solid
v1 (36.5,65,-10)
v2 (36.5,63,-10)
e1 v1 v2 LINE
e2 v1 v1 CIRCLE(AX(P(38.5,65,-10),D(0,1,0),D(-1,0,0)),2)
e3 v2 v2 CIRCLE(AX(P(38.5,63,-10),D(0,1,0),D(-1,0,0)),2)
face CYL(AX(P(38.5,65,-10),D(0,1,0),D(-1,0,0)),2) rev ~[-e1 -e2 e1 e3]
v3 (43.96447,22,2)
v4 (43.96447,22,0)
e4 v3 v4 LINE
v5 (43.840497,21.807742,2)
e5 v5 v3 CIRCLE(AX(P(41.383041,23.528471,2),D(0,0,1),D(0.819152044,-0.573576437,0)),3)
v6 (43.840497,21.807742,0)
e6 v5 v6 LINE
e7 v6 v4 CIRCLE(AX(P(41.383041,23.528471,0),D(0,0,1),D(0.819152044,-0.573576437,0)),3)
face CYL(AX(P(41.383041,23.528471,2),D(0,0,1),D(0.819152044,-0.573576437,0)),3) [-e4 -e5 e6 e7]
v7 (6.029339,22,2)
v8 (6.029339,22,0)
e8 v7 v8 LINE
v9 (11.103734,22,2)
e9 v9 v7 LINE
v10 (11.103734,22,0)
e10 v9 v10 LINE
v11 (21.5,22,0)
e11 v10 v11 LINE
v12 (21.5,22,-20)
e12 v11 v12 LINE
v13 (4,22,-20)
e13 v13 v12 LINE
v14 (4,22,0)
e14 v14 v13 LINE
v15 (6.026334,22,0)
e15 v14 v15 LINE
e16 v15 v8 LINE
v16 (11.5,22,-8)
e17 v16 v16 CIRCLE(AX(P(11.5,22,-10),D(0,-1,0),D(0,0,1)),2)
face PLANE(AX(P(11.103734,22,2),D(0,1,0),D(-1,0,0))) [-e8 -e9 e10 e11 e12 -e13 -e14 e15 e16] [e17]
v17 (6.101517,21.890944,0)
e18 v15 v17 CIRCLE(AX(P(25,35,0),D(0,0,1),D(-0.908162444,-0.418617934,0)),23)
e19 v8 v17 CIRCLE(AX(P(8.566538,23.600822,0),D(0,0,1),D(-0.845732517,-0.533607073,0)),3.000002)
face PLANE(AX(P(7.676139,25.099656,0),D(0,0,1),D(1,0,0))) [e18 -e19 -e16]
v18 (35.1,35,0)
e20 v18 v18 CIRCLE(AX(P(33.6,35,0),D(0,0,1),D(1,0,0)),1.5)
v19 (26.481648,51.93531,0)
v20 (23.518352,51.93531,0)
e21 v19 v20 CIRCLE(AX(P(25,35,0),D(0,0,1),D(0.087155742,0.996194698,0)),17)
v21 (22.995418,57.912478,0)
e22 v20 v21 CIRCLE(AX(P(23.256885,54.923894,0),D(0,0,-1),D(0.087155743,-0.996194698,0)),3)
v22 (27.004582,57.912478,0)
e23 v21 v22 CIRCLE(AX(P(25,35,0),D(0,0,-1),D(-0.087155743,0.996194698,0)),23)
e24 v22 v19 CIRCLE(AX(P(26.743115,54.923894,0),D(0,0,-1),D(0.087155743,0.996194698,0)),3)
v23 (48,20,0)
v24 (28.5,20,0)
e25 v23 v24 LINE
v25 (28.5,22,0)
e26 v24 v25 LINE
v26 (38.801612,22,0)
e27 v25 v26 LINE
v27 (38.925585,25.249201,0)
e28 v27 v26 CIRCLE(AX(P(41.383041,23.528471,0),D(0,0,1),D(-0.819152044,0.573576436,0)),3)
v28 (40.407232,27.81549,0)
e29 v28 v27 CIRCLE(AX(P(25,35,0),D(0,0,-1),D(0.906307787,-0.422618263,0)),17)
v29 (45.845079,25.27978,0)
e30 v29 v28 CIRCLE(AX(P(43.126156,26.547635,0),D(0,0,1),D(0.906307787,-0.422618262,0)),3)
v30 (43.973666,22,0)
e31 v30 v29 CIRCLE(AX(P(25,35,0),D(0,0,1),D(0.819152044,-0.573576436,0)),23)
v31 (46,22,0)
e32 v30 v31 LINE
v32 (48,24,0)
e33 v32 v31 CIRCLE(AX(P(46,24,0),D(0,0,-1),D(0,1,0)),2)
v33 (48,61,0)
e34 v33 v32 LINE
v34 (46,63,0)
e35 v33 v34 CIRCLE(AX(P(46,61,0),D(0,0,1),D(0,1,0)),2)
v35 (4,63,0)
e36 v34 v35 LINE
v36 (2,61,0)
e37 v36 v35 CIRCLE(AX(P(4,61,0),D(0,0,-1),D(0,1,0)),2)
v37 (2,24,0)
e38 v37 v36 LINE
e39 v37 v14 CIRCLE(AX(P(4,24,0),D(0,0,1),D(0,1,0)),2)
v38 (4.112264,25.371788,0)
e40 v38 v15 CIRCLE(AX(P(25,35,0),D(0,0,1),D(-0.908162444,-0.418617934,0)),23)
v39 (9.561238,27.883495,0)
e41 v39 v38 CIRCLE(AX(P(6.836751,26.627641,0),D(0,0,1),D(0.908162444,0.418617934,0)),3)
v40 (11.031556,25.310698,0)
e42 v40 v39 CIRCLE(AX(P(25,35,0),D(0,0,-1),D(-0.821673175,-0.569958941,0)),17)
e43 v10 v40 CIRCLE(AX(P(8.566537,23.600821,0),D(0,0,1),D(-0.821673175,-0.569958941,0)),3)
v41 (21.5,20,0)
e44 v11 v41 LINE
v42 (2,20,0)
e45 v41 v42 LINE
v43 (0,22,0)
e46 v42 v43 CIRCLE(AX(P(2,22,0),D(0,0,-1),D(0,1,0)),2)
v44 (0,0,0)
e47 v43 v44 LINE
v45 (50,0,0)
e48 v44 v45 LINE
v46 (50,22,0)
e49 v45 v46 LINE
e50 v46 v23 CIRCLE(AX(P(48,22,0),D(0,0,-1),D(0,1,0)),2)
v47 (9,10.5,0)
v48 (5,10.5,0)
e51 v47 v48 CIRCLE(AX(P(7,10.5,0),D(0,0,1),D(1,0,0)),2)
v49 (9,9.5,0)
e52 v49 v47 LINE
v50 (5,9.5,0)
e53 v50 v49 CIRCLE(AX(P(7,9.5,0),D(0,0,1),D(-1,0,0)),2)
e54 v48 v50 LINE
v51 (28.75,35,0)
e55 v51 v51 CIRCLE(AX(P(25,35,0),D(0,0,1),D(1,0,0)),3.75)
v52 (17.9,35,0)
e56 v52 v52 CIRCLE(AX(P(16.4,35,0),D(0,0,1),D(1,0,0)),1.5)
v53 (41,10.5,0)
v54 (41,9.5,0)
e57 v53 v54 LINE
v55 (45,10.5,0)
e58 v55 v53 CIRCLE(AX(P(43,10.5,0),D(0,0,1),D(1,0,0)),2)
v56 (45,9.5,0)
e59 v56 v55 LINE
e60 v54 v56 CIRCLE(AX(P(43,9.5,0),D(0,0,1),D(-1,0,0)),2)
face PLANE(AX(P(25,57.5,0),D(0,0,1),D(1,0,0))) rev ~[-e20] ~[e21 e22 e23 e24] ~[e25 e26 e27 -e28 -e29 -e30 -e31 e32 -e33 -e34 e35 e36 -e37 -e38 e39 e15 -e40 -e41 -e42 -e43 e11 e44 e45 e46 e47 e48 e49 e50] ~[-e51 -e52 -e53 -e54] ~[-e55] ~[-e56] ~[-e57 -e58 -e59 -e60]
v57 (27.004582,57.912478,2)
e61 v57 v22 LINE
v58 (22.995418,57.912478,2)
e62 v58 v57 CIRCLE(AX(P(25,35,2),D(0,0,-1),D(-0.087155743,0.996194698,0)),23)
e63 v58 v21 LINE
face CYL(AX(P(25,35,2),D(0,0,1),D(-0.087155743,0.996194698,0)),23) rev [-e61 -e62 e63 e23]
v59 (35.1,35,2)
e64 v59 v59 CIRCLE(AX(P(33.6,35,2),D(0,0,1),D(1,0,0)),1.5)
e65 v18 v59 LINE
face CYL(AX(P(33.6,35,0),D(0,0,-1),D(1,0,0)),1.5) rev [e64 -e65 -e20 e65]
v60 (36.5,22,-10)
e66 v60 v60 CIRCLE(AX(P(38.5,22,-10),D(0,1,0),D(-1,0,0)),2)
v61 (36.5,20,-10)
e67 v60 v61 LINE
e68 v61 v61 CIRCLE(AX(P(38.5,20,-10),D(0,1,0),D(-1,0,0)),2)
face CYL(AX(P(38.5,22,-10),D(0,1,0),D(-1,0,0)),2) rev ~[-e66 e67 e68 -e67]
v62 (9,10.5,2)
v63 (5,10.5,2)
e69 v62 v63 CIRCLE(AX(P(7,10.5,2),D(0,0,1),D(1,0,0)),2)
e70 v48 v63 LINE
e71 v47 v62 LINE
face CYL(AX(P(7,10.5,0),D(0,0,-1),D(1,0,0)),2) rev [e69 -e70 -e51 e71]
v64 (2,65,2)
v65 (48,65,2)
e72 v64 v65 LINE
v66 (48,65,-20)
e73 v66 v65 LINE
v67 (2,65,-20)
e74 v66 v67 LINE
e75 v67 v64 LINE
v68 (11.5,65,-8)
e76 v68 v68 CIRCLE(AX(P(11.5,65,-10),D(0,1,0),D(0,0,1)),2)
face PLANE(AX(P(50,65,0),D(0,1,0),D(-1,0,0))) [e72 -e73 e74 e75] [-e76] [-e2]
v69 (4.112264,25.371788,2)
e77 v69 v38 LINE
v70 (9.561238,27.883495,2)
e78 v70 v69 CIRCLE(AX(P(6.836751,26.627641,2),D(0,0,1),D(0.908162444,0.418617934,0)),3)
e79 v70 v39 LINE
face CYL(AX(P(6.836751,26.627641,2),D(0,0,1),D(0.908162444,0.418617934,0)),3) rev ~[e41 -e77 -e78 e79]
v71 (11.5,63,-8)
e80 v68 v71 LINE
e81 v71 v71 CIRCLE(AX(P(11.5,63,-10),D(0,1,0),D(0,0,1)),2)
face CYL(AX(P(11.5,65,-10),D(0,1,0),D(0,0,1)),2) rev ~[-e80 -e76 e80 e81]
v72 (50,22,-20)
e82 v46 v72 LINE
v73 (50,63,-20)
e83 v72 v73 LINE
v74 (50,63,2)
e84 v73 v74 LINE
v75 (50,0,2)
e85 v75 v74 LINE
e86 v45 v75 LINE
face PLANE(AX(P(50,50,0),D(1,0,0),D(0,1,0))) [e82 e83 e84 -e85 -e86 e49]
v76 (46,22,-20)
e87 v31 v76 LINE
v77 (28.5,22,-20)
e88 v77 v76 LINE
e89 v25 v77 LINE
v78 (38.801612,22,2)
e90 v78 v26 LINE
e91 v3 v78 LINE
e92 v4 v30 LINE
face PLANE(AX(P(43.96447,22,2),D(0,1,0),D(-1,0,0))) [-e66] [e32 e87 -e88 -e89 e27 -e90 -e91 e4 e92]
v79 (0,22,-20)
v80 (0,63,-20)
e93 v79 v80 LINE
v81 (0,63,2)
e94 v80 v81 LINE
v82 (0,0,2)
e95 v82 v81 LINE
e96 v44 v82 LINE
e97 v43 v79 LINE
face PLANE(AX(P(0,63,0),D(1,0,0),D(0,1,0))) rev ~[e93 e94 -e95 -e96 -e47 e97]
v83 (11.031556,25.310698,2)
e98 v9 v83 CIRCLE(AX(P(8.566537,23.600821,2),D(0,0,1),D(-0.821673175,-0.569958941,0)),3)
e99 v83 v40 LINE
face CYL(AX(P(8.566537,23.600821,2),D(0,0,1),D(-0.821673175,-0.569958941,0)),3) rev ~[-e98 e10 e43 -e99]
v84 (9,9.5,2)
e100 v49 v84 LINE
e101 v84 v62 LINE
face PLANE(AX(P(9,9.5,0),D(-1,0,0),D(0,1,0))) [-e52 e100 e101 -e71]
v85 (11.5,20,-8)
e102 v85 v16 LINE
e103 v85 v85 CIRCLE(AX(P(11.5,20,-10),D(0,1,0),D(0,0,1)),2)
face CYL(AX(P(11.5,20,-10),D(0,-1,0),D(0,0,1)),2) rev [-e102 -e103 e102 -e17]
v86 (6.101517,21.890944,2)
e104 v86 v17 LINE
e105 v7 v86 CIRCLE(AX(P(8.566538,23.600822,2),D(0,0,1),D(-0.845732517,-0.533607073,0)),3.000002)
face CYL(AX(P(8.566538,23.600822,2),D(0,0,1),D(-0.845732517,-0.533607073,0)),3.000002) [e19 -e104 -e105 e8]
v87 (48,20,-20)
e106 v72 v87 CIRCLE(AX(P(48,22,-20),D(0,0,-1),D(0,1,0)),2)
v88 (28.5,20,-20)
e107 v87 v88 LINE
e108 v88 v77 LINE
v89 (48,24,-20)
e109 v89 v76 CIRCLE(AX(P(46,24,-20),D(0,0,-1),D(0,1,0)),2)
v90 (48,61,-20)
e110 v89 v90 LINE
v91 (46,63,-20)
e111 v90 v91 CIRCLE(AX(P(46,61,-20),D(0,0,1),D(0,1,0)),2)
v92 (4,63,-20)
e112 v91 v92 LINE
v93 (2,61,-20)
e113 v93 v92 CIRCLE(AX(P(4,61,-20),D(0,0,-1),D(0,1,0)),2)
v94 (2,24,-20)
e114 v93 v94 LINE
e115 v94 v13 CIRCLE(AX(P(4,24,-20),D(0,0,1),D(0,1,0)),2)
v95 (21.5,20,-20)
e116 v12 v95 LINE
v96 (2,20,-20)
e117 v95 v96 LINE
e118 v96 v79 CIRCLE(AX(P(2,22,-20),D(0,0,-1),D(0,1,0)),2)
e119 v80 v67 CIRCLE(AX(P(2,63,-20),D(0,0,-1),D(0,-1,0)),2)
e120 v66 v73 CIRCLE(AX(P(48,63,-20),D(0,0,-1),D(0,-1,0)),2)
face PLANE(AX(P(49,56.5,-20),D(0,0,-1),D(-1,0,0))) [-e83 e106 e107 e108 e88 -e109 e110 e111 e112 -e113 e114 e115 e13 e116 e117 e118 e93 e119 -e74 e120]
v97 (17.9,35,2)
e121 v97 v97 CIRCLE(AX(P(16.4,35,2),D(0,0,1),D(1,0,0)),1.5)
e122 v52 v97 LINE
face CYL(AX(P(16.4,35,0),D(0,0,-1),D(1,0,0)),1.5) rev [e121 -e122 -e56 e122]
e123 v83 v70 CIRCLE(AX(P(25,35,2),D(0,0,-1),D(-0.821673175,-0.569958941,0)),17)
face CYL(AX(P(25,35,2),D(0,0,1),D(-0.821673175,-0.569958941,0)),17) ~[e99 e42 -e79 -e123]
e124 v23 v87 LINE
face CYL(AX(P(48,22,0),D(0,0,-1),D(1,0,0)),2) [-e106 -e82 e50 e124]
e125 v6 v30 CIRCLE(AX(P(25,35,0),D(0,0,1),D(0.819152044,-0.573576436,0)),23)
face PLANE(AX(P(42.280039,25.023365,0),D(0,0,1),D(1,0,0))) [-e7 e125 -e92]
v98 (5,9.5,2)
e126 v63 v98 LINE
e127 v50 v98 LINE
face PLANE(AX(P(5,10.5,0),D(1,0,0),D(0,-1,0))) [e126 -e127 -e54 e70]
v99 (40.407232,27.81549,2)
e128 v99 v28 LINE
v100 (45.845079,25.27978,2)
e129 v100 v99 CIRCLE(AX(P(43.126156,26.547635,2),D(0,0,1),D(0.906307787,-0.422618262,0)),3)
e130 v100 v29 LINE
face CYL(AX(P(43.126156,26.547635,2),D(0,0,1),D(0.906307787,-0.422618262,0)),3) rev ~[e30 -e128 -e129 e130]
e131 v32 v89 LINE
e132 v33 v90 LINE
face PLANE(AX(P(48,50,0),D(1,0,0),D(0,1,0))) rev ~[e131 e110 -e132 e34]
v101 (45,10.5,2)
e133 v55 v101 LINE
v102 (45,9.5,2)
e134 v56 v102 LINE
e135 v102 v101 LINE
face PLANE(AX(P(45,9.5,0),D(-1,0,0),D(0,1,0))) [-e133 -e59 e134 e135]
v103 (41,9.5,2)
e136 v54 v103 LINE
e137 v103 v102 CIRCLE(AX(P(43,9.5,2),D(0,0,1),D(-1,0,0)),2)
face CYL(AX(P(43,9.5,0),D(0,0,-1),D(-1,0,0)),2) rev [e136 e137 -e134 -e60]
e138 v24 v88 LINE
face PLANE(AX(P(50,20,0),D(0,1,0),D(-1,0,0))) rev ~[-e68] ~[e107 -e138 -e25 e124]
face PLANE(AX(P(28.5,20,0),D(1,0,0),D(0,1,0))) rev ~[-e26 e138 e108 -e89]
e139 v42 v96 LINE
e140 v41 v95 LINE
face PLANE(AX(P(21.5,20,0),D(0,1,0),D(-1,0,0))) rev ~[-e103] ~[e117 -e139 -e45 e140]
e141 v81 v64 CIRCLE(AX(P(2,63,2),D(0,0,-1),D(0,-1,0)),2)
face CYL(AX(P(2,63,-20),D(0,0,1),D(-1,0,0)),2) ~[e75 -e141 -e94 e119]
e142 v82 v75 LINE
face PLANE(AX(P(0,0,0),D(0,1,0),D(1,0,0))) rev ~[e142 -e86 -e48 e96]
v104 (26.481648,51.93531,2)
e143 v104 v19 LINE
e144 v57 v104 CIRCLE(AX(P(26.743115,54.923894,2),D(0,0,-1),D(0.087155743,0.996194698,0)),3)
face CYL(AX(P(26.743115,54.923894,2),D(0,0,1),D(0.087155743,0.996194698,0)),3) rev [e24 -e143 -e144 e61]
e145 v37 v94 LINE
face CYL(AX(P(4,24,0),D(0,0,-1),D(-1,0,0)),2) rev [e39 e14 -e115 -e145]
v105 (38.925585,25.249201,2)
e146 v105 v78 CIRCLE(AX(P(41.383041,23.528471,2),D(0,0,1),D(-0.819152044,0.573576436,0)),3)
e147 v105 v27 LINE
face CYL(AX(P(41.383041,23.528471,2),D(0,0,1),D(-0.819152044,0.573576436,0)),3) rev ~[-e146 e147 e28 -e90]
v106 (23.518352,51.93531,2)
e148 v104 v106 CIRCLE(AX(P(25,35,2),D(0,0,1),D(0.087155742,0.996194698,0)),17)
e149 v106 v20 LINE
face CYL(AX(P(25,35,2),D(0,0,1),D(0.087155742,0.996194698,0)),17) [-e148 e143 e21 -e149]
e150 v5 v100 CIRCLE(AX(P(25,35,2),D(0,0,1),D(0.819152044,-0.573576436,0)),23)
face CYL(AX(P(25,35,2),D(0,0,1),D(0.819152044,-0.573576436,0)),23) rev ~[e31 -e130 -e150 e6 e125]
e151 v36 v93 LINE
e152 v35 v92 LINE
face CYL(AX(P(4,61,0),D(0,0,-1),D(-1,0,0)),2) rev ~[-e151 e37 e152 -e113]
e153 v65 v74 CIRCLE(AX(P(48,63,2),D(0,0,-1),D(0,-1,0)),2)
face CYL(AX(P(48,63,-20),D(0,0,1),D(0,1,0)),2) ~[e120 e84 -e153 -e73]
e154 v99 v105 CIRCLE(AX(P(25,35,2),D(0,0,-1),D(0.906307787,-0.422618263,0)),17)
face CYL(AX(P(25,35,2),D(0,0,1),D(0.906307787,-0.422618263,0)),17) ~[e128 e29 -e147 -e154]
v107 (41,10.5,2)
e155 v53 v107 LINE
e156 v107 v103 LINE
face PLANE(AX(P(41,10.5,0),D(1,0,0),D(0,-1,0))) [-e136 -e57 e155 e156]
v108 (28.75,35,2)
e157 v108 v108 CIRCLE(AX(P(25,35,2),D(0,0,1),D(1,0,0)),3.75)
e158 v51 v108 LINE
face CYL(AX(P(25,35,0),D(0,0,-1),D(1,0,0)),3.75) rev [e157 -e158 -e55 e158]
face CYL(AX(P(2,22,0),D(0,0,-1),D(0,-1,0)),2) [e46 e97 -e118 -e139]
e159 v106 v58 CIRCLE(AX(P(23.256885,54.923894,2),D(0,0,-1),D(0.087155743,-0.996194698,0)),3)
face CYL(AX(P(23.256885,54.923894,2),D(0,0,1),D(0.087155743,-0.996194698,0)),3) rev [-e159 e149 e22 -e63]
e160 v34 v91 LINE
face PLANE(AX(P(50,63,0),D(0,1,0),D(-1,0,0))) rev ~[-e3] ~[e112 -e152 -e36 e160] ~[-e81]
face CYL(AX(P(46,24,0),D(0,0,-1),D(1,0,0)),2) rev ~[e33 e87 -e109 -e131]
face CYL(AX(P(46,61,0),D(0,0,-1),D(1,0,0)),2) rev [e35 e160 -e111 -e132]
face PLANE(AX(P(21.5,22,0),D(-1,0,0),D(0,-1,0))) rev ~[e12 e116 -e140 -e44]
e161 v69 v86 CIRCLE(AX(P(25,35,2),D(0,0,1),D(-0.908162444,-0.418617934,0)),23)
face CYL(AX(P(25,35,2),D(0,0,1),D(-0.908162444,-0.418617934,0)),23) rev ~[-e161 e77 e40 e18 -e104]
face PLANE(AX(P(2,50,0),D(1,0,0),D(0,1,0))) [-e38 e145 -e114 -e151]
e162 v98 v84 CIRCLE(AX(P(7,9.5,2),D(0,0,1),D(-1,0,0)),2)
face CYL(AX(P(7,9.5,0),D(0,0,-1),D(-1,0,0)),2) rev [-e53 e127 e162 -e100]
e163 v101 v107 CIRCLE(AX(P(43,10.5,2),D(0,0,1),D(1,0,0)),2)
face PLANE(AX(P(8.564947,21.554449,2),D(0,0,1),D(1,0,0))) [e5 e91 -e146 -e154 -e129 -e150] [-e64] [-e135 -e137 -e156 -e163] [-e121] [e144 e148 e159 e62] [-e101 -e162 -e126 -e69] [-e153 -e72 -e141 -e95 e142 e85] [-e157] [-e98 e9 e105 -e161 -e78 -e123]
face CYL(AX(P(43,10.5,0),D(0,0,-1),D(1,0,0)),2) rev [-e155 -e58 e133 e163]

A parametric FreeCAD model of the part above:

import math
import FreeCAD as App
import Part
import Sketcher
Q = App.Units.Quantity


def edges_at(feature, points):
    """Names of the edges that pass closest to the given points."""
    edges = feature.Shape.Edges
    near = lambda p: min(range(len(edges)), key=lambda i: edges[i].distToShape(Part.Vertex(*p))[0])
    return sorted({f"Edge{near(p) + 1}" for p in points})

doc = App.newDocument("Part")
body = doc.addObject("PartDesign::Body", "Body")

# Sketch on XY plane
sketch1 = body.newObject("Sketcher::SketchObject", "Sketch")
sketch1.AttachmentSupport = (doc.getObject("XY_Plane"), [""])
sketch1.MapMode = "FlatFace"
sketch1.addGeometry([
    Part.LineSegment(App.Vector(0, 50, 0), App.Vector(0, 0, 0)),  # 0
    Part.LineSegment(App.Vector(0, 0, 0), App.Vector(50, 0, 0)),  # 1
    Part.LineSegment(App.Vector(50, 0, 0), App.Vector(50, 50, 0)),  # 2
    Part.LineSegment(App.Vector(50, 50, 0), App.Vector(0, 50, 0)),  # 3
    Part.LineSegment(App.Vector(9, 10.5, 0), App.Vector(9, 9.5, 0)),  # 4
    Part.ArcOfCircle(Part.Circle(App.Vector(7, 9.5, 0), App.Vector(0, 0, 1), 2), math.radians(180), math.radians(360)),  # 5
    Part.LineSegment(App.Vector(5, 9.5, 0), App.Vector(5, 10.5, 0)),  # 6
    Part.ArcOfCircle(Part.Circle(App.Vector(7, 10.5, 0), App.Vector(0, 0, 1), 2), math.radians(0), math.radians(180)),  # 7
    Part.LineSegment(App.Vector(45, 10.5, 0), App.Vector(45, 9.5, 0)),  # 8
    Part.ArcOfCircle(Part.Circle(App.Vector(43, 9.5, 0), App.Vector(0, 0, 1), 2), math.radians(180), math.radians(360)),  # 9
    Part.LineSegment(App.Vector(41, 9.5, 0), App.Vector(41, 10.5, 0)),  # 10
    Part.ArcOfCircle(Part.Circle(App.Vector(43, 10.5, 0), App.Vector(0, 0, 1), 2), math.radians(0), math.radians(180)),  # 11
    Part.Circle(App.Vector(16.4, 35, 0), App.Vector(0, 0, 1), 1.5),  # 12
    Part.Circle(App.Vector(25, 35, 0), App.Vector(0, 0, 1), 3.75),  # 13
    Part.Circle(App.Vector(33.6, 35, 0), App.Vector(0, 0, 1), 1.5),  # 14
], False)
sketch1.addConstraint([
    Sketcher.Constraint("Coincident", 0, 2, 1, 1),
    Sketcher.Constraint("Coincident", 1, 2, 2, 1),
    Sketcher.Constraint("Coincident", 2, 2, 3, 1),
    Sketcher.Constraint("Coincident", 3, 2, 0, 1),
    Sketcher.Constraint("Tangent", 4, 2, 5, 2),
    Sketcher.Constraint("Tangent", 5, 1, 6, 1),
    Sketcher.Constraint("Tangent", 6, 2, 7, 2),
    Sketcher.Constraint("Tangent", 7, 1, 4, 1),
    Sketcher.Constraint("Tangent", 8, 2, 9, 2),
    Sketcher.Constraint("Tangent", 9, 1, 10, 1),
    Sketcher.Constraint("Tangent", 10, 2, 11, 2),
    Sketcher.Constraint("Tangent", 11, 1, 8, 1),
    Sketcher.Constraint("Vertical", 0),
    Sketcher.Constraint("Horizontal", 1),
    Sketcher.Constraint("Vertical", 2),
    Sketcher.Constraint("Horizontal", 3),
    Sketcher.Constraint("Vertical", 4),
    Sketcher.Constraint("Vertical", 6),
    Sketcher.Constraint("Vertical", 8),
    Sketcher.Constraint("Vertical", 10),
    Sketcher.Constraint("Coincident", 0, 2, -1, 1),
    Sketcher.Constraint("Equal", 7, 9),
    Sketcher.Constraint("Equal", 12, 14),
    Sketcher.Constraint("Horizontal", 5, 3, 9, 3),
    Sketcher.Constraint("Horizontal", 7, 3, 11, 3),
    Sketcher.Constraint("Horizontal", 12, 3, 13, 3),
    Sketcher.Constraint("Horizontal", 13, 3, 14, 3),
    Sketcher.Constraint("Equal", 3, 0),
    Sketcher.Constraint("Diameter", 12, Q("3 mm")),
    Sketcher.Constraint("Radius", 5, Q("2 mm")),
    Sketcher.Constraint("Diameter", 13, Q("7.5 mm")),
    Sketcher.Constraint("DistanceX", 1, 1, 1, 2, Q("50 mm")),
    Sketcher.Constraint("DistanceY", 4, 2, 4, 1, Q("1 mm")),
    Sketcher.Constraint("DistanceX", -1, 1, 5, 3, Q("7 mm")),
    Sketcher.Constraint("DistanceX", -1, 1, 9, 3, Q("43 mm")),
    Sketcher.Constraint("DistanceY", -1, 1, 12, 3, Q("35 mm")),
    Sketcher.Constraint("DistanceX", -1, 1, 13, 3, Q("25 mm")),
    Sketcher.Constraint("DistanceY", -1, 1, 5, 3, Q("9.5 mm")),
    Sketcher.Constraint("DistanceX", -1, 1, 12, 3, Q("16.4 mm")),
    Sketcher.Constraint("DistanceX", -1, 1, 14, 3, Q("33.6 mm")),
])
pad1 = body.newObject("PartDesign::Pad", "Pad")
pad1.Profile = sketch1
pad1.Length = 2

# Sketch on XY plane
sketch2 = body.newObject("Sketcher::SketchObject", "Sketch001")
sketch2.AttachmentSupport = (doc.getObject("XY_Plane"), [""])
sketch2.MapMode = "FlatFace"
sketch2.addGeometry([
    Part.LineSegment(App.Vector(48, 22, 0), App.Vector(48, 50, 0)),  # 0
    Part.LineSegment(App.Vector(48, 50, 0), App.Vector(50, 50, 0)),  # 1
    Part.LineSegment(App.Vector(50, 50, 0), App.Vector(50, 20, 0)),  # 2
    Part.LineSegment(App.Vector(50, 20, 0), App.Vector(28.5, 20, 0)),  # 3
    Part.LineSegment(App.Vector(28.5, 20, 0), App.Vector(28.5, 22, 0)),  # 4
    Part.LineSegment(App.Vector(28.5, 22, 0), App.Vector(48, 22, 0)),  # 5
    Part.LineSegment(App.Vector(0, 20, 0), App.Vector(0, 50, 0)),  # 6
    Part.LineSegment(App.Vector(0, 50, 0), App.Vector(2, 50, 0)),  # 7
    Part.LineSegment(App.Vector(2, 50, 0), App.Vector(2, 22, 0)),  # 8
    Part.LineSegment(App.Vector(2, 22, 0), App.Vector(21.5, 22, 0)),  # 9
    Part.LineSegment(App.Vector(21.5, 22, 0), App.Vector(21.5, 20, 0)),  # 10
    Part.LineSegment(App.Vector(21.5, 20, 0), App.Vector(0, 20, 0)),  # 11
], False)
sketch2.addConstraint([
    Sketcher.Constraint("Coincident", 0, 2, 1, 1),
    Sketcher.Constraint("Coincident", 1, 2, 2, 1),
    Sketcher.Constraint("Coincident", 2, 2, 3, 1),
    Sketcher.Constraint("Coincident", 3, 2, 4, 1),
    Sketcher.Constraint("Coincident", 4, 2, 5, 1),
    Sketcher.Constraint("Coincident", 5, 2, 0, 1),
    Sketcher.Constraint("Coincident", 6, 2, 7, 1),
    Sketcher.Constraint("Coincident", 7, 2, 8, 1),
    Sketcher.Constraint("Coincident", 8, 2, 9, 1),
    Sketcher.Constraint("Coincident", 9, 2, 10, 1),
    Sketcher.Constraint("Coincident", 10, 2, 11, 1),
    Sketcher.Constraint("Coincident", 11, 2, 6, 1),
    Sketcher.Constraint("Vertical", 0),
    Sketcher.Constraint("Horizontal", 1),
    Sketcher.Constraint("Vertical", 2),
    Sketcher.Constraint("Horizontal", 3),
    Sketcher.Constraint("Vertical", 4),
    Sketcher.Constraint("Horizontal", 5),
    Sketcher.Constraint("Vertical", 6),
    Sketcher.Constraint("Horizontal", 7),
    Sketcher.Constraint("Vertical", 8),
    Sketcher.Constraint("Horizontal", 9),
    Sketcher.Constraint("Vertical", 10),
    Sketcher.Constraint("Horizontal", 11),
    Sketcher.Constraint("PointOnObject", 6, 2, -2),
    Sketcher.Constraint("Horizontal", 1, 2, 6, 2),
    Sketcher.Constraint("Horizontal", 5, 2, 8, 2),
    Sketcher.Constraint("Horizontal", 3, 2, 10, 2),
    Sketcher.Constraint("Equal", 1, 7),
    Sketcher.Constraint("Equal", 5, 9),
    Sketcher.Constraint("Equal", 7, 4),
    Sketcher.Constraint("DistanceX", 1, 1, 1, 2, Q("2 mm")),
    Sketcher.Constraint("DistanceY", 0, 1, 0, 2, Q("28 mm")),
    Sketcher.Constraint("DistanceX", 3, 2, 3, 1, Q("21.5 mm")),
    Sketcher.Constraint("DistanceX", -1, 1, 0, 2, Q("48 mm")),
    Sketcher.Constraint("DistanceY", -1, 1, 0, 2, Q("50 mm")),
])
pad2 = body.newObject("PartDesign::Pad", "Pad001")
pad2.Profile = sketch2
pad2.Length = 20
pad2.Reversed = True

# Sketch on XZ plane
sketch3 = body.newObject("Sketcher::SketchObject", "Sketch002")
sketch3.AttachmentSupport = (doc.getObject("XZ_Plane"), [""])
sketch3.MapMode = "FlatFace"
sketch3.AttachmentOffset = App.Placement(App.Vector(0, 0, -22), App.Rotation())
sketch3.addGeometry(Part.Circle(App.Vector(38.5, -10, 0), App.Vector(0, 0, 1), 2), False)
sketch3.addConstraint([
    Sketcher.Constraint("Diameter", 0, Q("4 mm")),
    Sketcher.Constraint("DistanceY", 0, 3, -1, 1, Q("10 mm")),
    Sketcher.Constraint("DistanceX", -1, 1, 0, 3, Q("38.5 mm")),
])
pocket1 = body.newObject("PartDesign::Pocket", "Pocket")
pocket1.Profile = sketch3
pocket1.Length = 2
pocket1.Reversed = True

# Sketch on XZ plane
sketch4 = body.newObject("Sketcher::SketchObject", "Sketch003")
sketch4.AttachmentSupport = (doc.getObject("XZ_Plane"), [""])
sketch4.MapMode = "FlatFace"
sketch4.AttachmentOffset = App.Placement(App.Vector(0, 0, -22), App.Rotation())
sketch4.addGeometry(Part.Circle(App.Vector(11.5, -10, 0), App.Vector(0, 0, 1), 2), False)
sketch4.addConstraint([
    Sketcher.Constraint("Diameter", 0, Q("4 mm")),
    Sketcher.Constraint("DistanceY", 0, 3, -1, 1, Q("10 mm")),
    Sketcher.Constraint("DistanceX", -1, 1, 0, 3, Q("11.5 mm")),
])
pocket2 = body.newObject("PartDesign::Pocket", "Pocket001")
pocket2.Profile = sketch4
pocket2.Type = "ThroughAll"
pocket2.Midplane = True

# Sketch on XY plane
sketch5 = body.newObject("Sketcher::SketchObject", "Sketch004")
sketch5.AttachmentSupport = (doc.getObject("XY_Plane"), [""])
sketch5.MapMode = "FlatFace"
sketch5.AttachmentOffset = App.Placement(App.Vector(0, 0, 2), App.Rotation())
sketch5.addGeometry([
    Part.LineSegment(App.Vector(0, 65, 0), App.Vector(0, 50, 0)),  # 0
    Part.LineSegment(App.Vector(0, 50, 0), App.Vector(50, 50, 0)),  # 1
    Part.LineSegment(App.Vector(50, 50, 0), App.Vector(50, 65, 0)),  # 2
    Part.LineSegment(App.Vector(50, 65, 0), App.Vector(0, 65, 0)),  # 3
    Part.ArcOfCircle(Part.Circle(App.Vector(25, 35, 0), App.Vector(0, 0, 1), 23), math.radians(85), math.radians(95)),  # 4
    Part.ArcOfCircle(Part.Circle(App.Vector(26.743115, 54.923894, 0), App.Vector(0, 0, 1), 3), math.radians(-95), math.radians(85)),  # 5
    Part.ArcOfCircle(Part.Circle(App.Vector(25, 35, 0), App.Vector(0, 0, 1), 17), math.radians(85), math.radians(95)),  # 6
    Part.ArcOfCircle(Part.Circle(App.Vector(23.256885, 54.923894, 0), App.Vector(0, 0, 1), 3), math.radians(95), math.radians(275)),  # 7
], False)
sketch5.addConstraint([
    Sketcher.Constraint("Coincident", 0, 2, 1, 1),
    Sketcher.Constraint("Coincident", 1, 2, 2, 1),
    Sketcher.Constraint("Coincident", 2, 2, 3, 1),
    Sketcher.Constraint("Coincident", 3, 2, 0, 1),
    Sketcher.Constraint("Tangent", 4, 1, 5, 2),
    Sketcher.Constraint("Tangent", 5, 1, 6, 1),
    Sketcher.Constraint("Tangent", 6, 2, 7, 2),
    Sketcher.Constraint("Tangent", 7, 1, 4, 2),
    Sketcher.Constraint("Vertical", 0),
    Sketcher.Constraint("Horizontal", 1),
    Sketcher.Constraint("Vertical", 2),
    Sketcher.Constraint("Horizontal", 3),
    Sketcher.Constraint("Coincident", 6, 3, 4, 3),
    Sketcher.Constraint("PointOnObject", 0, 2, -2),
    Sketcher.Constraint("Horizontal", 5, 3, 7, 3),
    Sketcher.Constraint("Radius", 4, Q("23 mm")),
    Sketcher.Constraint("Radius", 5, Q("3 mm")),
    Sketcher.Constraint("DistanceX", 1, 1, 1, 2, Q("50 mm")),
    Sketcher.Constraint("DistanceY", 0, 2, 0, 1, Q("15 mm")),
    Sketcher.Constraint("DistanceX", -1, 1, 4, 3, Q("25 mm")),
    Sketcher.Constraint("DistanceY", -1, 1, 4, 3, Q("35 mm")),
    Sketcher.Constraint("DistanceY", -1, 1, 0, 2, Q("50 mm")),
    Sketcher.Constraint("DistanceY", -1, 1, 4, 1, Q("57.912478 mm")),
])
pad3 = body.newObject("PartDesign::Pad", "Pad002")
pad3.Profile = sketch5
pad3.Length = 2
pad3.Reversed = True

# Sketch on XY plane
sketch6 = body.newObject("Sketcher::SketchObject", "Sketch005")
sketch6.AttachmentSupport = (doc.getObject("XY_Plane"), [""])
sketch6.MapMode = "FlatFace"
sketch6.AttachmentOffset = App.Placement(App.Vector(0, 0, 2), App.Rotation())
sketch6.addGeometry([
    Part.ArcOfCircle(Part.Circle(App.Vector(8.566537, 23.600821, 0), App.Vector(0, 0, 1), 3), math.radians(-145.252637), math.radians(34.747363)),  # 0
    Part.ArcOfCircle(Part.Circle(App.Vector(25, 35, 0), App.Vector(0, 0, 1), 17), math.radians(-155.252637), math.radians(-145.252637)),  # 1
    Part.ArcOfCircle(Part.Circle(App.Vector(6.836751, 26.627641, 0), App.Vector(0, 0, 1), 3), math.radians(24.747363), math.radians(204.747363)),  # 2
    Part.ArcOfCircle(Part.Circle(App.Vector(25, 35, 0), App.Vector(0, 0, 1), 23), math.radians(-155.252637), math.radians(-145.252637)),  # 3
    Part.ArcOfCircle(Part.Circle(App.Vector(41.383041, 23.528471, 0), App.Vector(0, 0, 1), 3), math.radians(145), math.radians(325)),  # 4
    Part.ArcOfCircle(Part.Circle(App.Vector(25, 35, 0), App.Vector(0, 0, 1), 23), math.radians(-35), math.radians(-25)),  # 5
    Part.ArcOfCircle(Part.Circle(App.Vector(43.126156, 26.547635, 0), App.Vector(0, 0, 1), 3), math.radians(-25), math.radians(155)),  # 6
    Part.ArcOfCircle(Part.Circle(App.Vector(25, 35, 0), App.Vector(0, 0, 1), 17), math.radians(-35), math.radians(-25)),  # 7
], False)
sketch6.addConstraint([
    Sketcher.Constraint("Tangent", 0, 2, 1, 2),
    Sketcher.Constraint("Tangent", 1, 1, 2, 1),
    Sketcher.Constraint("Tangent", 2, 2, 3, 1),
    Sketcher.Constraint("Tangent", 3, 2, 0, 1),
    Sketcher.Constraint("Tangent", 4, 2, 5, 1),
    Sketcher.Constraint("Tangent", 5, 2, 6, 1),
    Sketcher.Constraint("Tangent", 6, 2, 7, 2),
    Sketcher.Constraint("Tangent", 7, 1, 4, 1),
    Sketcher.Constraint("Coincident", 3, 3, 1, 3),
    Sketcher.Constraint("Coincident", 5, 3, 1, 3),
    Sketcher.Constraint("Coincident", 7, 3, 1, 3),
    Sketcher.Constraint("Equal", 2, 4),
    Sketcher.Constraint("Equal", 3, 5),
    Sketcher.Constraint("Radius", 0, Q("3 mm")),
    Sketcher.Constraint("Radius", 1, Q("17 mm")),
    Sketcher.Constraint("DistanceX", -1, 1, 1, 3, Q("25 mm")),
    Sketcher.Constraint("DistanceY", -1, 1, 1, 3, Q("35 mm")),
    Sketcher.Constraint("DistanceY", -1, 1, 0, 2, Q("25.310698 mm")),
    Sketcher.Constraint("DistanceY", -1, 1, 7, 1, Q("25.249201 mm")),
    Sketcher.Constraint("DistanceX", 0, 3, 1, 1, Q("0.994702 mm")),
    Sketcher.Constraint("DistanceX", -1, 1, 5, 2, Q("45.845079 mm")),
])
pocket3 = body.newObject("PartDesign::Pocket", "Pocket002")
pocket3.Profile = sketch6
pocket3.Length = 2

# Sketch on XY plane
sketch7 = body.newObject("Sketcher::SketchObject", "Sketch006")
sketch7.AttachmentSupport = (doc.getObject("XY_Plane"), [""])
sketch7.MapMode = "FlatFace"
sketch7.AttachmentOffset = App.Placement(App.Vector(0, 0, 2), App.Rotation())
sketch7.addGeometry([
    Part.LineSegment(App.Vector(43.96447, 22, 0), App.Vector(38.801612, 22, 0)),
    Part.ArcOfCircle(Part.Circle(App.Vector(41.383041, 23.528471, 0), App.Vector(0, 0, 1), 3), math.radians(-149.370107), math.radians(-35)),
    Part.ArcOfCircle(Part.Circle(App.Vector(41.383041, 23.528471, 0), App.Vector(0, 0, 1), 3), math.radians(-35), math.radians(-30.629893)),
], False)
sketch7.addConstraint([
    Sketcher.Constraint("Coincident", 0, 2, 1, 1),
    Sketcher.Constraint("Tangent", 1, 2, 2, 1),
    Sketcher.Constraint("Coincident", 2, 2, 0, 1),
    Sketcher.Constraint("Horizontal", 0),
    Sketcher.Constraint("Equal", 1, 2),
    Sketcher.Constraint("Radius", 1, Q("3 mm")),
    Sketcher.Constraint("DistanceY", -1, 1, 0, 2, Q("22 mm")),
    Sketcher.Constraint("DistanceX", 0, 2, 0, 1, Q("5.162858 mm")),
    Sketcher.Constraint("DistanceX", -1, 1, 1, 3, Q("41.383041 mm")),
    Sketcher.Constraint("DistanceY", -1, 1, 1, 2, Q("21.807742 mm")),
])
pad4 = body.newObject("PartDesign::Pad", "Pad003")
pad4.Profile = sketch7
pad4.Length = 2
pad4.Reversed = True

# Sketch on XY plane
sketch8 = body.newObject("Sketcher::SketchObject", "Sketch007")
sketch8.AttachmentSupport = (doc.getObject("XY_Plane"), [""])
sketch8.MapMode = "FlatFace"
sketch8.AttachmentOffset = App.Placement(App.Vector(0, 0, 2), App.Rotation())
sketch8.addGeometry([
    Part.ArcOfCircle(Part.Circle(App.Vector(8.566537, 23.600821, 0), App.Vector(0, 0, 1), 3), math.radians(-145.252637), math.radians(-32.249495)),
    Part.LineSegment(App.Vector(11.103734, 22, 0), App.Vector(6.029339, 22, 0)),
    Part.ArcOfCircle(Part.Circle(App.Vector(8.566538, 23.600822, 0), App.Vector(0, 0, 1), 3.000002), math.radians(-147.750504), math.radians(-145.252638)),
], False)
sketch8.addConstraint([
    Sketcher.Constraint("Coincident", 0, 2, 1, 1),
    Sketcher.Constraint("Coincident", 1, 2, 2, 1),
    Sketcher.Constraint("Tangent", 2, 2, 0, 1),
    Sketcher.Constraint("Horizontal", 1),
    Sketcher.Constraint("Equal", 0, 2),
    Sketcher.Constraint("Radius", 0, Q("3 mm")),
    Sketcher.Constraint("DistanceY", -1, 1, 0, 2, Q("22 mm")),
    Sketcher.Constraint("DistanceX", 1, 2, 2, 3, Q("2.537199 mm")),
    Sketcher.Constraint("DistanceX", -1, 1, 1, 2, Q("6.029339 mm")),
    Sketcher.Constraint("DistanceX", 1, 2, 2, 2, Q("0.072178 mm")),
])
pad5 = body.newObject("PartDesign::Pad", "Pad004")
pad5.Profile = sketch8
pad5.Length = 2
pad5.Reversed = True

# Sketch on XY plane
sketch9 = body.newObject("Sketcher::SketchObject", "Sketch008")
sketch9.AttachmentSupport = (doc.getObject("XY_Plane"), [""])
sketch9.MapMode = "FlatFace"
sketch9.addGeometry([
    Part.LineSegment(App.Vector(50, 65, 0), App.Vector(50, 63, 0)),
    Part.LineSegment(App.Vector(50, 63, 0), App.Vector(0, 63, 0)),
    Part.LineSegment(App.Vector(0, 63, 0), App.Vector(0, 65, 0)),
    Part.LineSegment(App.Vector(0, 65, 0), App.Vector(50, 65, 0)),
], False)
sketch9.addConstraint([
    Sketcher.Constraint("Coincident", 0, 2, 1, 1),
    Sketcher.Constraint("Coincident", 1, 2, 2, 1),
    Sketcher.Constraint("Coincident", 2, 2, 3, 1),
    Sketcher.Constraint("Coincident", 3, 2, 0, 1),
    Sketcher.Constraint("Vertical", 0),
    Sketcher.Constraint("Horizontal", 1),
    Sketcher.Constraint("Vertical", 2),
    Sketcher.Constraint("Horizontal", 3),
    Sketcher.Constraint("PointOnObject", 1, 2, -2),
    Sketcher.Constraint("DistanceX", 1, 2, 1, 1, Q("50 mm")),
    Sketcher.Constraint("DistanceY", 0, 2, 0, 1, Q("2 mm")),
    Sketcher.Constraint("DistanceY", -1, 1, 0, 2, Q("63 mm")),
])
pad6 = body.newObject("PartDesign::Pad", "Pad005")
pad6.Profile = sketch9
pad6.Length = 20
pad6.Reversed = True

# Sketch on XZ plane
sketch10 = body.newObject("Sketcher::SketchObject", "Sketch009")
sketch10.AttachmentSupport = (doc.getObject("XZ_Plane"), [""])
sketch10.MapMode = "FlatFace"
sketch10.AttachmentOffset = App.Placement(App.Vector(0, 0, -65), App.Rotation())
sketch10.addGeometry([
    Part.Circle(App.Vector(38.5, -10, 0), App.Vector(0, 0, 1), 2),
    Part.Circle(App.Vector(11.5, -10, 0), App.Vector(0, 0, 1), 2),
], False)
sketch10.addConstraint([
    Sketcher.Constraint("Equal", 0, 1),
    Sketcher.Constraint("Horizontal", 0, 3, 1, 3),
    Sketcher.Constraint("Diameter", 0, Q("4 mm")),
    Sketcher.Constraint("DistanceY", 0, 3, -1, 1, Q("10 mm")),
    Sketcher.Constraint("DistanceX", 1, 3, 0, 3, Q("27 mm")),
    Sketcher.Constraint("DistanceX", -1, 1, 0, 3, Q("38.5 mm")),
])
pocket4 = body.newObject("PartDesign::Pocket", "Pocket003")
pocket4.Profile = sketch10
pocket4.Length = 49
pocket4.Reversed = True

# Sketch on XY plane
sketch11 = body.newObject("Sketcher::SketchObject", "Sketch010")
sketch11.AttachmentSupport = (doc.getObject("XY_Plane"), [""])
sketch11.MapMode = "FlatFace"
sketch11.addGeometry([
    Part.LineSegment(App.Vector(50, 63, 0), App.Vector(50, 50, 0)),  # 0
    Part.LineSegment(App.Vector(50, 50, 0), App.Vector(48, 50, 0)),  # 1
    Part.LineSegment(App.Vector(48, 50, 0), App.Vector(48, 63, 0)),  # 2
    Part.LineSegment(App.Vector(48, 63, 0), App.Vector(50, 63, 0)),  # 3
    Part.LineSegment(App.Vector(2, 63, 0), App.Vector(2, 50, 0)),  # 4
    Part.LineSegment(App.Vector(2, 50, 0), App.Vector(0, 50, 0)),  # 5
    Part.LineSegment(App.Vector(0, 50, 0), App.Vector(0, 63, 0)),  # 6
    Part.LineSegment(App.Vector(0, 63, 0), App.Vector(2, 63, 0)),  # 7
], False)
sketch11.addConstraint([
    Sketcher.Constraint("Coincident", 0, 2, 1, 1),
    Sketcher.Constraint("Coincident", 1, 2, 2, 1),
    Sketcher.Constraint("Coincident", 2, 2, 3, 1),
    Sketcher.Constraint("Coincident", 3, 2, 0, 1),
    Sketcher.Constraint("Coincident", 4, 2, 5, 1),
    Sketcher.Constraint("Coincident", 5, 2, 6, 1),
    Sketcher.Constraint("Coincident", 6, 2, 7, 1),
    Sketcher.Constraint("Coincident", 7, 2, 4, 1),
    Sketcher.Constraint("Vertical", 0),
    Sketcher.Constraint("Horizontal", 1),
    Sketcher.Constraint("Vertical", 2),
    Sketcher.Constraint("Horizontal", 3),
    Sketcher.Constraint("Vertical", 4),
    Sketcher.Constraint("Horizontal", 5),
    Sketcher.Constraint("Vertical", 6),
    Sketcher.Constraint("Horizontal", 7),
    Sketcher.Constraint("PointOnObject", 5, 2, -2),
    Sketcher.Constraint("Horizontal", 1, 2, 4, 2),
    Sketcher.Constraint("Horizontal", 3, 2, 6, 2),
    Sketcher.Constraint("Equal", 3, 5),
    Sketcher.Constraint("DistanceX", 1, 2, 1, 1, Q("2 mm")),
    Sketcher.Constraint("DistanceY", 0, 2, 0, 1, Q("13 mm")),
    Sketcher.Constraint("DistanceX", -1, 1, 0, 2, Q("50 mm")),
    Sketcher.Constraint("DistanceY", -1, 1, 0, 2, Q("50 mm")),
])
pad7 = body.newObject("PartDesign::Pad", "Pad006")
pad7.Profile = sketch11
pad7.Length = 20
pad7.Reversed = True
doc.recompute()

fillet = body.newObject("PartDesign::Fillet", "Fillet")
fillet.Base = (pad7, edges_at(pad7, [(0, 65, -9)]))
fillet.Radius = 2
doc.recompute()

fillet2 = body.newObject("PartDesign::Fillet", "Fillet001")
fillet2.Base = (fillet, edges_at(fillet, [(50, 65, -9)]))
fillet2.Radius = 2
doc.recompute()

fillet3 = body.newObject("PartDesign::Fillet", "Fillet002")
fillet3.Base = (fillet2, edges_at(fillet2, [(50, 20, -10)]))
fillet3.Radius = 2
doc.recompute()

fillet4 = body.newObject("PartDesign::Fillet", "Fillet003")
fillet4.Base = (fillet3, edges_at(fillet3, [(0, 20, -10)]))
fillet4.Radius = 2
doc.recompute()

fillet5 = body.newObject("PartDesign::Fillet", "Fillet004")
fillet5.Base = (fillet4, edges_at(fillet4, [(48, 63, -10)]))
fillet5.Radius = 2
doc.recompute()

fillet6 = body.newObject("PartDesign::Fillet", "Fillet005")
fillet6.Base = (fillet5, edges_at(fillet5, [(2, 22, -10)]))
fillet6.Radius = 2
doc.recompute()

fillet7 = body.newObject("PartDesign::Fillet", "Fillet006")
fillet7.Base = (fillet6, edges_at(fillet6, [(2, 63, -10)]))
fillet7.Radius = 2
doc.recompute()

fillet8 = body.newObject("PartDesign::Fillet", "Fillet007")
fillet8.Base = (fillet7, edges_at(fillet7, [(48, 22, -10)]))
fillet8.Radius = 2

doc.recompute()
